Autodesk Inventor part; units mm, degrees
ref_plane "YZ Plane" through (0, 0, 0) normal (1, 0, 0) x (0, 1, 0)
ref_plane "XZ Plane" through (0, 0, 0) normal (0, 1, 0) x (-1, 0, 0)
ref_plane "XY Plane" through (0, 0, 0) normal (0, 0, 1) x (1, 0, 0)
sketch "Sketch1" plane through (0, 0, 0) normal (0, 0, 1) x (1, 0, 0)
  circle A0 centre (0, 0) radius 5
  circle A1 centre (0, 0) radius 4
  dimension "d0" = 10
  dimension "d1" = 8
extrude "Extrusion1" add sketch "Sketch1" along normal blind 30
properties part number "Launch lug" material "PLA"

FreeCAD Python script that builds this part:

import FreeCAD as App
import Part
import Sketcher

V = App.Vector

doc = App.newDocument("Part")
params = doc.addObject("Spreadsheet::Sheet", "Params")
for row, (alias, value) in enumerate([
    ("sketch1_diameter", "10 mm"),
    ("sketch1_diameter2", "8 mm"),
    ("pad1_length", "30 mm"),
], start=1):
    params.set(f"A{row}", alias)
    params.set(f"B{row}", "=" + value)
    params.setAlias(f"B{row}", alias)

body = doc.addObject("PartDesign::Body", "Body")

sketch1 = doc.addObject("Sketcher::SketchObject", "Sketch")
body.addObject(sketch1)
sketch1.AttachmentSupport = (doc.XY_Plane, [""])
sketch1.MapMode = "FlatFace"
sketch1.addGeometry(Part.Circle(V(0, 0, 0), V(0, 0, 1), 5), False)
sketch1.addGeometry(Part.Circle(V(0, 0, 0), V(0, 0, 1), 4), False)
sketch1.addConstraint(Sketcher.Constraint("Coincident", 0, 3, -1, 1))
sketch1.addConstraint(Sketcher.Constraint("Coincident", 1, 3, -1, 1))
sketch1.addConstraint(Sketcher.Constraint("Diameter", 0, 10.0))
sketch1.addConstraint(Sketcher.Constraint("Diameter", 1, 8.0))
sketch1.setExpression("Constraints[2]", "Params.sketch1_diameter")
sketch1.setExpression("Constraints[3]", "Params.sketch1_diameter2")
pad1 = doc.addObject("PartDesign::Pad", "Pad")
body.addObject(pad1)
pad1.Profile = sketch1
pad1.setExpression("Length", "Params.pad1_length")

doc.recompute()
